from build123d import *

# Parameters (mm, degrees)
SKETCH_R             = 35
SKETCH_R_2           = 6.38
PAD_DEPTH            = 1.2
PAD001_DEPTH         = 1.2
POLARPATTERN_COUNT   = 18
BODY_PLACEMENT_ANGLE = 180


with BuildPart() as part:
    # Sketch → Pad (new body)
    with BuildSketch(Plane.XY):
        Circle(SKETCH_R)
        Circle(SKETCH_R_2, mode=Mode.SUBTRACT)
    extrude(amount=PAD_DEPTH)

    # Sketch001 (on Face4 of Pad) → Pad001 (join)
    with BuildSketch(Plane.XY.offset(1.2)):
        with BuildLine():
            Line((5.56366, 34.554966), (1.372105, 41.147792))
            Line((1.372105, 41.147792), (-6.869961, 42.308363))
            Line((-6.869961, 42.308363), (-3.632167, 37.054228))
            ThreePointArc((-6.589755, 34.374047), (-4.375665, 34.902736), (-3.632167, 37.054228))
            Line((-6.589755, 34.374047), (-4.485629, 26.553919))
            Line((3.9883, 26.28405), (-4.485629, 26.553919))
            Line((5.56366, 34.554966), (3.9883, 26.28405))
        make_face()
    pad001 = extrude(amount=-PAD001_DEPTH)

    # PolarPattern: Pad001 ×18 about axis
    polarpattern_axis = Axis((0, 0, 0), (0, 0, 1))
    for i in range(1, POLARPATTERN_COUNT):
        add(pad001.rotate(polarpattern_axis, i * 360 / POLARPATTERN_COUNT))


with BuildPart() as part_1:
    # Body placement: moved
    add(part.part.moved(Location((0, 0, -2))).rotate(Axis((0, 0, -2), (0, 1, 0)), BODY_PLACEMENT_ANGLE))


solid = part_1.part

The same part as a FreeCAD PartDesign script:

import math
import FreeCAD as App
import Part
import Sketcher

doc = App.newDocument("Part")
body = doc.addObject("PartDesign::Body", "Body")

sketch1 = body.newObject("Sketcher::SketchObject", "Sketch")
sketch1.AttachmentSupport = (doc.getObject("XY_Plane"), [""])
sketch1.MapMode = "FlatFace"
sketch1.addGeometry(Part.Circle(App.Vector(0, 0, 0), App.Vector(0, 0, 1), 35), False)
sketch1.addGeometry(Part.Circle(App.Vector(0, 0, 0), App.Vector(0, 0, 1), 6), False)
sketch1.addConstraint(Sketcher.Constraint("Coincident", 0, 3, -1, 1))
sketch1.addConstraint(Sketcher.Constraint("Coincident", 1, 3, -1, 1))
sketch1.addConstraint(Sketcher.Constraint("Diameter", 0, 70.0))
sketch1.addConstraint(Sketcher.Constraint("Diameter", 1, 12.76))
pad1 = body.newObject("PartDesign::Pad", "Pad")
pad1.Profile = sketch1
pad1.Length = 1.2

sketch2 = body.newObject("Sketcher::SketchObject", "Sketch001")
sketch2.AttachmentSupport = (doc.getObject("XY_Plane"), [""])
sketch2.MapMode = "FlatFace"
sketch2.AttachmentOffset = App.Placement(App.Vector(0, 0, 1.2), App.Rotation())
sketch2.addGeometry(Part.LineSegment(App.Vector(5.6, 34.6, 0), App.Vector(1.4, 41.1, 0)), False)
sketch2.addGeometry(Part.LineSegment(App.Vector(1.4, 41.1, 0), App.Vector(-6.9, 42.3, 0)), False)
sketch2.addGeometry(Part.LineSegment(App.Vector(-6.9, 42.3, 0), App.Vector(-3.6, 37.1, 0)), False)
sketch2.addGeometry(Part.ArcOfCircle(Part.Circle(App.Vector(-6, 36.7, 0), App.Vector(0, 0, 1), 2.4), math.radians(-105), math.radians(10)), False)
sketch2.addGeometry(Part.LineSegment(App.Vector(-6.6, 34.4, 0), App.Vector(-4.5, 26.6, 0)), False)
sketch2.addGeometry(Part.LineSegment(App.Vector(-4.5, 26.6, 0), App.Vector(4, 26.3, 0)), False)
sketch2.addGeometry(Part.LineSegment(App.Vector(4, 26.3, 0), App.Vector(5.6, 34.6, 0)), False)
sketch2.addConstraint(Sketcher.Constraint("Coincident", 0, 2, 1, 1))
sketch2.addConstraint(Sketcher.Constraint("Coincident", 1, 2, 2, 1))
sketch2.addConstraint(Sketcher.Constraint("Coincident", 2, 2, 3, 2))
sketch2.addConstraint(Sketcher.Constraint("Coincident", 3, 1, 4, 1))
sketch2.addConstraint(Sketcher.Constraint("Coincident", 4, 2, 5, 1))
sketch2.addConstraint(Sketcher.Constraint("Coincident", 5, 2, 6, 1))
sketch2.addConstraint(Sketcher.Constraint("Coincident", 6, 2, 0, 1))
sketch2.addConstraint(Sketcher.Constraint("Radius", 3, 2.366069))
sketch2.addConstraint(Sketcher.Constraint("DistanceY", -1, 1, 3, 3, 36.656001))
sketch2.addConstraint(Sketcher.Constraint("DistanceX", -1, 1, 5, 2, 3.9883))
sketch2.addConstraint(Sketcher.Constraint("Distance", 2, 6.171648))
sketch2.addConstraint(Sketcher.Constraint("Distance", 6, 8.419609))
sketch2.addConstraint(Sketcher.Constraint("DistanceX", 1, 2, -1, 1, 6.869961))
sketch2.addConstraint(Sketcher.Constraint("DistanceY", -1, 1, 2, 2, 37.054228))
sketch2.addConstraint(Sketcher.Constraint("DistanceX", 4, 2, -1, 1, 4.485629))
sketch2.addConstraint(Sketcher.Constraint("DistanceY", -1, 1, 4, 2, 26.553919))
sketch2.addConstraint(Sketcher.Constraint("DistanceY", -1, 1, 5, 2, 26.28405))
sketch2.addConstraint(Sketcher.Constraint("DistanceX", -1, 1, 6, 2, 5.56366))
sketch2.addConstraint(Sketcher.Constraint("DistanceY", 3, 3, 0, 2, 4.491791))
sketch2.addConstraint(Sketcher.Constraint("DistanceX", 1, 2, 3, 3, 0.905478))
sketch2.addConstraint(Sketcher.Constraint("DistanceY", 3, 1, 2, 2, 2.680181))
sketch2.addConstraint(Sketcher.Constraint("DistanceX", 3, 1, 0, 2, 7.96186))
pad2 = body.newObject("PartDesign::Pad", "Pad001")
pad2.Profile = sketch2
pad2.Length = 1.2
pad2.Reversed = True
doc.recompute()

polarpattern = body.newObject("PartDesign::PolarPattern", "PolarPattern")
polarpattern.Originals = [pad2]
polarpattern.Axis = (doc.getObject("Z_Axis"), [""])
polarpattern.Angle = 360
polarpattern.Occurrences = 18
body.Tip = polarpattern
body2 = doc.addObject("PartDesign::Body", "Body001")
doc.recompute()

body.Placement = App.Placement(App.Vector(0, 0, -2), App.Rotation(App.Vector(0, 1, 0), 180))
boolean = body2.newObject("PartDesign::Boolean", "Boolean")
boolean.Type = "Fuse"
boolean.addObjects([body])

doc.recompute()
